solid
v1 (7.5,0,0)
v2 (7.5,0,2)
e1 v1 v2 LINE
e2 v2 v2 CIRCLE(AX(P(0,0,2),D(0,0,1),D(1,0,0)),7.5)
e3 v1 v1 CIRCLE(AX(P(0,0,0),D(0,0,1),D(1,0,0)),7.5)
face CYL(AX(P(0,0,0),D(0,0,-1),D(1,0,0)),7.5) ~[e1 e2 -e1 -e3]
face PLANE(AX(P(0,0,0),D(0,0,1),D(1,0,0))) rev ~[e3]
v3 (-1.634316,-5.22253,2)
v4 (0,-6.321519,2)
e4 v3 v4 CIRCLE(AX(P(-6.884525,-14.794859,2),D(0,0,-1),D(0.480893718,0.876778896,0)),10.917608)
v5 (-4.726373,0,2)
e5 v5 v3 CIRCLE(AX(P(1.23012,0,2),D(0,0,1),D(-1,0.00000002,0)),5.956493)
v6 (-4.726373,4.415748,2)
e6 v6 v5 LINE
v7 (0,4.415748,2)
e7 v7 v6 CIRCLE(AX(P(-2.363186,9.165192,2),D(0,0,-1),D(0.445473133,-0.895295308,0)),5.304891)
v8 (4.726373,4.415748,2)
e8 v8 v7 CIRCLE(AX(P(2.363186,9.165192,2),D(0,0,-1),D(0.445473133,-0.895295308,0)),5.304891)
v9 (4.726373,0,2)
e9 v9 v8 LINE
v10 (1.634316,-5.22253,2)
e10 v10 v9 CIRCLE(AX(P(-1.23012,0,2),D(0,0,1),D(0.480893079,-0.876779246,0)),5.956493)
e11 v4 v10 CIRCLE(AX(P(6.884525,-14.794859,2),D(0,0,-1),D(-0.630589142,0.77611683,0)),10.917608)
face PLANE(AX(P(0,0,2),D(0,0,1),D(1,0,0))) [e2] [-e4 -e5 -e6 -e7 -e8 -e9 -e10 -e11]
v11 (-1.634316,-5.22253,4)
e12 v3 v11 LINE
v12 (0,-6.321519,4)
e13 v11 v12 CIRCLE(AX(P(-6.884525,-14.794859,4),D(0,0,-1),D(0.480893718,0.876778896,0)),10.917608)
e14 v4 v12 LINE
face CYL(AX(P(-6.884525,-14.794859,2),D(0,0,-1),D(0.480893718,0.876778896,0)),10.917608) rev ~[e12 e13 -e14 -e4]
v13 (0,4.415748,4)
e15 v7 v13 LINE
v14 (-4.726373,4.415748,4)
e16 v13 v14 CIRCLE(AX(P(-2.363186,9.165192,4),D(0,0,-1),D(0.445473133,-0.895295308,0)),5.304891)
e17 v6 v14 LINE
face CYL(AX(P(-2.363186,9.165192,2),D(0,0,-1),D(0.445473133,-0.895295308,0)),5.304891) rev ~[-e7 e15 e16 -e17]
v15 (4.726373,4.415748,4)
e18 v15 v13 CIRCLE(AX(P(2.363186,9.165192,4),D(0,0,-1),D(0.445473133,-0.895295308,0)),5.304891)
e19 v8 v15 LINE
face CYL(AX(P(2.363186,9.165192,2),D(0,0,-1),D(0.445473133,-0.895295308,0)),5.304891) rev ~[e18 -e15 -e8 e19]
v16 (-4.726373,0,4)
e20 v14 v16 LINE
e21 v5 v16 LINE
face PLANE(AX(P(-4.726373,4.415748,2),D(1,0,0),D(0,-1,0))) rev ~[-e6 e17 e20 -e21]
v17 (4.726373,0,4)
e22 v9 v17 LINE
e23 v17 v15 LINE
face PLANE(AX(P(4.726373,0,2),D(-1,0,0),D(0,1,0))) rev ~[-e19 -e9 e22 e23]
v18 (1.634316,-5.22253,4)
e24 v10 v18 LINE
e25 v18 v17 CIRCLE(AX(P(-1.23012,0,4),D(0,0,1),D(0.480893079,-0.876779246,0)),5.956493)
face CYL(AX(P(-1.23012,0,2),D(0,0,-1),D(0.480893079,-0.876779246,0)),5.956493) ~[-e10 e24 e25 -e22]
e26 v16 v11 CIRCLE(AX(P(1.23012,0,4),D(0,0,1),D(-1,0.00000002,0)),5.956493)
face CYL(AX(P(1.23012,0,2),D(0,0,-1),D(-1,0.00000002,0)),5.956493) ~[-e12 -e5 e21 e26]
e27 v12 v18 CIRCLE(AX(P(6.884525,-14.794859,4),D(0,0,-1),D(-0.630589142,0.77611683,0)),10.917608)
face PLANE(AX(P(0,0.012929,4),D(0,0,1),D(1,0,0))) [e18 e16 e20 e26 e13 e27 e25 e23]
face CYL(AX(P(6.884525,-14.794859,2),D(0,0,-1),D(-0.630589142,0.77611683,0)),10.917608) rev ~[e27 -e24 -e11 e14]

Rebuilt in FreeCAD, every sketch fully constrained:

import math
import FreeCAD as App
import Part
import Sketcher
from FreeCAD import Vector

doc = App.newDocument("Part")
params = doc.addObject("Spreadsheet::Sheet", "Params")
for row, (alias, value) in enumerate([
    ("sketch1_diameter", "15 mm"),
    ("pad1_length", "2 mm"),
    ("pad2_length", "2 mm"),
], start=1):
    params.set(f"A{row}", alias)
    params.set(f"B{row}", "=" + value)
    params.setAlias(f"B{row}", alias)

body = doc.addObject("PartDesign::Body", "Body")

sketch1 = body.newObject("Sketcher::SketchObject", "Sketch")
sketch1.AttachmentSupport = (doc.getObject("XY_Plane"), [""])
sketch1.MapMode = "FlatFace"
sketch1.addGeometry(Part.Circle(Vector(0, 0, 0), Vector(0, 0, 1), 8), False)
sketch1.addConstraint([
    Sketcher.Constraint("Coincident", 0, 3, -1, 1),
    Sketcher.Constraint("Diameter", 0, 15.0),
])
sketch1.setExpression("Constraints[1]", "Params.sketch1_diameter")
pad1 = body.newObject("PartDesign::Pad", "Pad")
pad1.Profile = sketch1
pad1.setExpression("Length", "Params.pad1_length")

sketch2 = body.newObject("Sketcher::SketchObject", "Sketch001")
sketch2.AttachmentSupport = (doc.getObject("XY_Plane"), [""])
sketch2.MapMode = "FlatFace"
sketch2.AttachmentOffset = App.Placement(Vector(0, 0, 2), App.Rotation())
sketch2.addGeometry([
    Part.ArcOfCircle(Part.Circle(Vector(-6.9, -14.8, 0), Vector(0, 0, 1), 10.9), math.radians(50.91), math.radians(61.26)),
    Part.ArcOfCircle(Part.Circle(Vector(6.9, -14.8, 0), Vector(0, 0, 1), 10.9), math.radians(118.74), math.radians(129.09)),
    Part.ArcOfCircle(Part.Circle(Vector(-1.2, 0, 0), Vector(0, 0, 1), 6), math.radians(-61), math.radians(0)),
    Part.LineSegment(Vector(4.7, 0, 0), Vector(4.7, 4.4, 0)),
    Part.ArcOfCircle(Part.Circle(Vector(2.4, 9.2, 0), Vector(0, 0, 1), 5.3), math.radians(-116), math.radians(-64)),
    Part.ArcOfCircle(Part.Circle(Vector(-2.4, 9.2, 0), Vector(0, 0, 1), 5.3), math.radians(-116), math.radians(-64)),
    Part.LineSegment(Vector(-4.7, 4.4, 0), Vector(-4.7, 0, 0)),
    Part.ArcOfCircle(Part.Circle(Vector(1.2, 0, 0), Vector(0, 0, 1), 6), math.radians(180), math.radians(241)),
], False)
sketch2.addConstraint([
    Sketcher.Constraint("Coincident", 0, 1, 1, 2),
    Sketcher.Constraint("Tangent", 1, 1, 2, 1),
    Sketcher.Constraint("Tangent", 2, 2, 3, 1),
    Sketcher.Constraint("Coincident", 3, 2, 4, 2),
    Sketcher.Constraint("Coincident", 4, 1, 5, 2),
    Sketcher.Constraint("Coincident", 5, 1, 6, 1),
    Sketcher.Constraint("Tangent", 6, 2, 7, 1),
    Sketcher.Constraint("Tangent", 7, 2, 0, 2),
    Sketcher.Constraint("Vertical", 3),
    Sketcher.Constraint("Vertical", 6),
    Sketcher.Constraint("Equal", 0, 1),
    Sketcher.Constraint("Equal", 4, 5),
    Sketcher.Constraint("Equal", 2, 7),
    Sketcher.Constraint("Symmetric", 2, 3, 7, 3, -1, 1),
    Sketcher.Constraint("Symmetric", 0, 3, 1, 3, -2),
    Sketcher.Constraint("Symmetric", 4, 3, 5, 3, -2),
    Sketcher.Constraint("Horizontal", 3, 2, 4, 1),
    Sketcher.Constraint("Radius", 0, 10.917608),
    Sketcher.Constraint("Radius", 4, 5.304891),
    Sketcher.Constraint("Radius", 2, 5.956493),
    Sketcher.Constraint("DistanceY", 3, 1, 3, 2, 4.415748),
    Sketcher.Constraint("DistanceY", 0, 3, -1, 1, 14.794859),
    Sketcher.Constraint("DistanceX", 2, 3, -1, 1, 1.23012),
])
pad2 = body.newObject("PartDesign::Pad", "Pad001")
pad2.Profile = sketch2
pad2.setExpression("Length", "Params.pad2_length")

doc.recompute()
